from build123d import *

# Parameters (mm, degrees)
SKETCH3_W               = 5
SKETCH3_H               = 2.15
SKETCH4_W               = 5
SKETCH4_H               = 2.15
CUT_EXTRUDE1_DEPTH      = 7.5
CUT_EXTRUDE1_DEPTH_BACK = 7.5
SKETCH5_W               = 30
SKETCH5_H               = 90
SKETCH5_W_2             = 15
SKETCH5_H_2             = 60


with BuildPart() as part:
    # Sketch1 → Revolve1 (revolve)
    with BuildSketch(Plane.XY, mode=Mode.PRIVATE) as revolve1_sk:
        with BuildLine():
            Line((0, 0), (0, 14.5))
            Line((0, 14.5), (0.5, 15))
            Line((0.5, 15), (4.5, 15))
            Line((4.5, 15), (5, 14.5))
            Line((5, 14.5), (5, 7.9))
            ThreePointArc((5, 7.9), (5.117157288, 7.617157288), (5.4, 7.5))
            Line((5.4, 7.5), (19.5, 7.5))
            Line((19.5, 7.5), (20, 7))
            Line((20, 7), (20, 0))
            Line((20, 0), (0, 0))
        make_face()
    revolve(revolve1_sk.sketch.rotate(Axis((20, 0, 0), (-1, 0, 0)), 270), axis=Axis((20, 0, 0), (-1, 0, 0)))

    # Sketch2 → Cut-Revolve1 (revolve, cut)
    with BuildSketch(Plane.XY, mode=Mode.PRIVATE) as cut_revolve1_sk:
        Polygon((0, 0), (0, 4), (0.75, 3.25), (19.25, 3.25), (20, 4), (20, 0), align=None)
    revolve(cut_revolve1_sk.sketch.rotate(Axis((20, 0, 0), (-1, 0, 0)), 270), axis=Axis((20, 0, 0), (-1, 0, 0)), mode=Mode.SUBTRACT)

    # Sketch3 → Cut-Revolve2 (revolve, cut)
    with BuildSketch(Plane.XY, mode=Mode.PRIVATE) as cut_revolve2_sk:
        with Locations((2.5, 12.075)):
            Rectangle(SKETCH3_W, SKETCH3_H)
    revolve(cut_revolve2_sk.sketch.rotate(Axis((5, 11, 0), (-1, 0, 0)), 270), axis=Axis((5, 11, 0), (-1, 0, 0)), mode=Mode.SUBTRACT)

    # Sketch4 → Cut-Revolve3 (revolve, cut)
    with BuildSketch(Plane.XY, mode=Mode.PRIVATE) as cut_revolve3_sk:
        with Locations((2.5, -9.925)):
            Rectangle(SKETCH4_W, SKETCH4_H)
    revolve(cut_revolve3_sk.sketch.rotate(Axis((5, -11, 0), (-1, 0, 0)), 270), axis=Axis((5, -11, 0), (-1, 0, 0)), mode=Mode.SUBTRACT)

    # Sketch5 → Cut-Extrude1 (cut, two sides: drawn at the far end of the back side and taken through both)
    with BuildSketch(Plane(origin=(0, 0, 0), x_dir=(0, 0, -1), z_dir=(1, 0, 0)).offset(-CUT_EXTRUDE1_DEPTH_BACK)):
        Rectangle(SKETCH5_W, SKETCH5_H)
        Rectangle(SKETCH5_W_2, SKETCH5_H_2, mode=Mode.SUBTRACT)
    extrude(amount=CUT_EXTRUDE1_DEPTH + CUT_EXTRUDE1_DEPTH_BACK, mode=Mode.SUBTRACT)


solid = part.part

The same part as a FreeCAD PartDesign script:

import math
import FreeCAD as App
import Part
import Sketcher

V = App.Vector
Q = App.Units.Quantity


def add_polygon(sketch, points):
    """Adds a closed chain of lines whose ends are joined by coincident constraints."""
    first, n = sketch.GeometryCount, len(points)
    for a, b in zip(points, points[1:] + points[:1]):
        sketch.addGeometry(Part.LineSegment(App.Vector(*a, 0), App.Vector(*b, 0)), False)
    for i in range(n):
        sketch.addConstraint(Sketcher.Constraint("Coincident", first + i, 2, first + (i + 1) % n, 1))

doc = App.newDocument("Part")
body = doc.addObject("PartDesign::Body", "Body")

# Sketch on XY plane
sketch1 = body.newObject("Sketcher::SketchObject", "Sketch")
sketch1.AttachmentSupport = (doc.getObject("XY_Plane"), [""])
sketch1.MapMode = "FlatFace"
sketch1.addGeometry(Part.LineSegment(V(0, 14.5, 0), V(0, 0, 0)), False)
sketch1.addGeometry(Part.LineSegment(V(0, 0, 0), V(20, 0, 0)), False)
sketch1.addGeometry(Part.LineSegment(V(20, 0, 0), V(20, 7, 0)), False)
sketch1.addGeometry(Part.LineSegment(V(20, 7, 0), V(19.5, 7.5, 0)), False)
sketch1.addGeometry(Part.LineSegment(V(19.5, 7.5, 0), V(5.4, 7.5, 0)), False)
sketch1.addGeometry(Part.ArcOfCircle(Part.Circle(V(5.4, 7.9, 0), V(0, 0, 1), 0.4), math.radians(-180), math.radians(-90)), False)
sketch1.addGeometry(Part.LineSegment(V(5, 7.9, 0), V(5, 14.5, 0)), False)
sketch1.addGeometry(Part.LineSegment(V(5, 14.5, 0), V(4.5, 15, 0)), False)
sketch1.addGeometry(Part.LineSegment(V(4.5, 15, 0), V(0.5, 15, 0)), False)
sketch1.addGeometry(Part.LineSegment(V(0.5, 15, 0), V(0, 14.5, 0)), False)
sketch1.addConstraint(Sketcher.Constraint("Coincident", 0, 2, 1, 1))
sketch1.addConstraint(Sketcher.Constraint("Coincident", 1, 2, 2, 1))
sketch1.addConstraint(Sketcher.Constraint("Coincident", 2, 2, 3, 1))
sketch1.addConstraint(Sketcher.Constraint("Coincident", 3, 2, 4, 1))
sketch1.addConstraint(Sketcher.Constraint("Tangent", 4, 2, 5, 2))
sketch1.addConstraint(Sketcher.Constraint("Tangent", 5, 1, 6, 1))
sketch1.addConstraint(Sketcher.Constraint("Coincident", 6, 2, 7, 1))
sketch1.addConstraint(Sketcher.Constraint("Coincident", 7, 2, 8, 1))
sketch1.addConstraint(Sketcher.Constraint("Coincident", 8, 2, 9, 1))
sketch1.addConstraint(Sketcher.Constraint("Coincident", 9, 2, 0, 1))
sketch1.addConstraint(Sketcher.Constraint("Vertical", 0))
sketch1.addConstraint(Sketcher.Constraint("Horizontal", 1))
sketch1.addConstraint(Sketcher.Constraint("Vertical", 2))
sketch1.addConstraint(Sketcher.Constraint("Horizontal", 4))
sketch1.addConstraint(Sketcher.Constraint("Vertical", 6))
sketch1.addConstraint(Sketcher.Constraint("Horizontal", 8))
sketch1.addConstraint(Sketcher.Constraint("Coincident", 0, 2, -1, 1))
sketch1.addConstraint(Sketcher.Constraint("Parallel", 3, 7))
sketch1.addConstraint(Sketcher.Constraint("Perpendicular", 7, 9))
sketch1.addConstraint(Sketcher.Constraint("Horizontal", 6, 2, 9, 2))
sketch1.addConstraint(Sketcher.Constraint("Equal", 3, 7))
sketch1.addConstraint(Sketcher.Constraint("Equal", 7, 9))
sketch1.addConstraint(Sketcher.Constraint("Radius", 5, Q("0.4 mm")))
sketch1.addConstraint(Sketcher.Constraint("DistanceX", 1, 1, 1, 2, Q("20 mm")))
sketch1.addConstraint(Sketcher.Constraint("DistanceX", 8, 2, 8, 1, Q("4 mm")))
sketch1.addConstraint(Sketcher.Constraint("DistanceY", 2, 1, 2, 2, Q("7 mm")))
sketch1.addConstraint(Sketcher.Constraint("DistanceX", 4, 2, 4, 1, Q("14.1 mm")))
sketch1.addConstraint(Sketcher.Constraint("DistanceY", 0, 2, 0, 1, Q("14.5 mm")))
revolution = body.newObject("PartDesign::Revolution", "Revolution")
revolution.Profile = sketch1
revolution.ReferenceAxis = (sketch1, ["H_Axis"])
revolution.Angle = 360

# Sketch on XY plane
sketch2 = body.newObject("Sketcher::SketchObject", "Sketch001")
sketch2.AttachmentSupport = (doc.getObject("XY_Plane"), [""])
sketch2.MapMode = "FlatFace"
add_polygon(sketch2, [(0, 4), (0, 0), (20, 0), (20, 4), (19.2, 3.2), (0.8, 3.2)])  # lines 0-5
sketch2.addConstraint(Sketcher.Constraint("Vertical", 0))
sketch2.addConstraint(Sketcher.Constraint("Horizontal", 1))
sketch2.addConstraint(Sketcher.Constraint("Vertical", 2))
sketch2.addConstraint(Sketcher.Constraint("Horizontal", 4))
sketch2.addConstraint(Sketcher.Constraint("Coincident", 0, 2, -1, 1))
sketch2.addConstraint(Sketcher.Constraint("Perpendicular", 3, 5))
sketch2.addConstraint(Sketcher.Constraint("Horizontal", 2, 2, 5, 2))
sketch2.addConstraint(Sketcher.Constraint("Equal", 3, 5))
sketch2.addConstraint(Sketcher.Constraint("DistanceX", 1, 1, 1, 2, Q("20 mm")))
sketch2.addConstraint(Sketcher.Constraint("DistanceY", 0, 2, 0, 1, Q("4 mm")))
sketch2.addConstraint(Sketcher.Constraint("DistanceX", 4, 2, 4, 1, Q("18.5 mm")))
groove = body.newObject("PartDesign::Groove", "Groove")
groove.Profile = sketch2
groove.ReferenceAxis = (sketch2, ["H_Axis"])
groove.Angle = 360

# Sketch on XY plane
sketch3 = body.newObject("Sketcher::SketchObject", "Sketch002")
sketch3.AttachmentSupport = (doc.getObject("XY_Plane"), [""])
sketch3.MapMode = "FlatFace"
add_polygon(sketch3, [(0, 13.2), (0, 11), (5, 11), (5, 13.2)])  # lines 0-3
sketch3.addGeometry(Part.LineSegment(V(5, 11, 0), V(0, 11, 0)), True)  # axis
sketch3.addConstraint(Sketcher.Constraint("Vertical", 0))
sketch3.addConstraint(Sketcher.Constraint("Horizontal", 1))
sketch3.addConstraint(Sketcher.Constraint("Vertical", 2))
sketch3.addConstraint(Sketcher.Constraint("Horizontal", 3))
sketch3.addConstraint(Sketcher.Constraint("Horizontal", 4))
sketch3.addConstraint(Sketcher.Constraint("Coincident", 4, 1, 1, 2))
sketch3.addConstraint(Sketcher.Constraint("PointOnObject", 0, 2, -2))
sketch3.addConstraint(Sketcher.Constraint("PointOnObject", 4, 2, -2))
sketch3.addConstraint(Sketcher.Constraint("DistanceX", 1, 1, 1, 2, Q("5 mm")))
sketch3.addConstraint(Sketcher.Constraint("DistanceY", -1, 1, 0, 2, Q("11 mm")))
sketch3.addConstraint(Sketcher.Constraint("DistanceY", 0, 2, 0, 1, Q("2.15 mm")))
groove2 = body.newObject("PartDesign::Groove", "Groove001")
groove2.Profile = sketch3
groove2.ReferenceAxis = (sketch3, ["Axis0"])
groove2.Angle = 360

# Sketch on XY plane
sketch4 = body.newObject("Sketcher::SketchObject", "Sketch003")
sketch4.AttachmentSupport = (doc.getObject("XY_Plane"), [""])
sketch4.MapMode = "FlatFace"
add_polygon(sketch4, [(0, -8.8), (0, -11), (5, -11), (5, -8.8)])  # lines 0-3
sketch4.addGeometry(Part.LineSegment(V(5, -11, 0), V(0, -11, 0)), True)  # axis
sketch4.addConstraint(Sketcher.Constraint("Vertical", 0))
sketch4.addConstraint(Sketcher.Constraint("Horizontal", 1))
sketch4.addConstraint(Sketcher.Constraint("Vertical", 2))
sketch4.addConstraint(Sketcher.Constraint("Horizontal", 3))
sketch4.addConstraint(Sketcher.Constraint("Horizontal", 4))
sketch4.addConstraint(Sketcher.Constraint("Coincident", 4, 1, 1, 2))
sketch4.addConstraint(Sketcher.Constraint("PointOnObject", 0, 2, -2))
sketch4.addConstraint(Sketcher.Constraint("PointOnObject", 4, 2, -2))
sketch4.addConstraint(Sketcher.Constraint("DistanceX", 1, 1, 1, 2, Q("5 mm")))
sketch4.addConstraint(Sketcher.Constraint("DistanceY", 0, 2, -1, 1, Q("11 mm")))
sketch4.addConstraint(Sketcher.Constraint("DistanceY", 0, 2, 0, 1, Q("2.15 mm")))
groove3 = body.newObject("PartDesign::Groove", "Groove002")
groove3.Profile = sketch4
groove3.ReferenceAxis = (sketch4, ["Axis0"])
groove3.Angle = 360

# Sketch on YZ plane
sketch5 = body.newObject("Sketcher::SketchObject", "Sketch004")
sketch5.AttachmentSupport = (doc.getObject("YZ_Plane"), [""])
sketch5.MapMode = "FlatFace"
add_polygon(sketch5, [(45, 15), (-45, 15), (-45, -15), (45, -15)])  # lines 0-3
add_polygon(sketch5, [(-30, -8), (-30, 8), (30, 8), (30, -8)])  # lines 4-7
sketch5.addConstraint(Sketcher.Constraint("Horizontal", 0))
sketch5.addConstraint(Sketcher.Constraint("Vertical", 1))
sketch5.addConstraint(Sketcher.Constraint("Horizontal", 2))
sketch5.addConstraint(Sketcher.Constraint("Vertical", 3))
sketch5.addConstraint(Sketcher.Constraint("Vertical", 4))
sketch5.addConstraint(Sketcher.Constraint("Horizontal", 5))
sketch5.addConstraint(Sketcher.Constraint("Vertical", 6))
sketch5.addConstraint(Sketcher.Constraint("Horizontal", 7))
sketch5.addConstraint(Sketcher.Constraint("Symmetric", 0, 2, 2, 2, -1, 1))
sketch5.addConstraint(Sketcher.Constraint("Symmetric", 4, 2, 6, 2, -1, 1))
sketch5.addConstraint(Sketcher.Constraint("DistanceX", 0, 2, 0, 1, Q("90 mm")))
sketch5.addConstraint(Sketcher.Constraint("DistanceX", 5, 1, 5, 2, Q("60 mm")))
sketch5.addConstraint(Sketcher.Constraint("DistanceY", 1, 2, 1, 1, Q("30 mm")))
sketch5.addConstraint(Sketcher.Constraint("DistanceY", 4, 1, 4, 2, Q("15 mm")))
pocket1 = body.newObject("PartDesign::Pocket", "Pocket")
pocket1.Profile = sketch5
pocket1.Type = "ThroughAll"
pocket1.Midplane = True

doc.recompute()
